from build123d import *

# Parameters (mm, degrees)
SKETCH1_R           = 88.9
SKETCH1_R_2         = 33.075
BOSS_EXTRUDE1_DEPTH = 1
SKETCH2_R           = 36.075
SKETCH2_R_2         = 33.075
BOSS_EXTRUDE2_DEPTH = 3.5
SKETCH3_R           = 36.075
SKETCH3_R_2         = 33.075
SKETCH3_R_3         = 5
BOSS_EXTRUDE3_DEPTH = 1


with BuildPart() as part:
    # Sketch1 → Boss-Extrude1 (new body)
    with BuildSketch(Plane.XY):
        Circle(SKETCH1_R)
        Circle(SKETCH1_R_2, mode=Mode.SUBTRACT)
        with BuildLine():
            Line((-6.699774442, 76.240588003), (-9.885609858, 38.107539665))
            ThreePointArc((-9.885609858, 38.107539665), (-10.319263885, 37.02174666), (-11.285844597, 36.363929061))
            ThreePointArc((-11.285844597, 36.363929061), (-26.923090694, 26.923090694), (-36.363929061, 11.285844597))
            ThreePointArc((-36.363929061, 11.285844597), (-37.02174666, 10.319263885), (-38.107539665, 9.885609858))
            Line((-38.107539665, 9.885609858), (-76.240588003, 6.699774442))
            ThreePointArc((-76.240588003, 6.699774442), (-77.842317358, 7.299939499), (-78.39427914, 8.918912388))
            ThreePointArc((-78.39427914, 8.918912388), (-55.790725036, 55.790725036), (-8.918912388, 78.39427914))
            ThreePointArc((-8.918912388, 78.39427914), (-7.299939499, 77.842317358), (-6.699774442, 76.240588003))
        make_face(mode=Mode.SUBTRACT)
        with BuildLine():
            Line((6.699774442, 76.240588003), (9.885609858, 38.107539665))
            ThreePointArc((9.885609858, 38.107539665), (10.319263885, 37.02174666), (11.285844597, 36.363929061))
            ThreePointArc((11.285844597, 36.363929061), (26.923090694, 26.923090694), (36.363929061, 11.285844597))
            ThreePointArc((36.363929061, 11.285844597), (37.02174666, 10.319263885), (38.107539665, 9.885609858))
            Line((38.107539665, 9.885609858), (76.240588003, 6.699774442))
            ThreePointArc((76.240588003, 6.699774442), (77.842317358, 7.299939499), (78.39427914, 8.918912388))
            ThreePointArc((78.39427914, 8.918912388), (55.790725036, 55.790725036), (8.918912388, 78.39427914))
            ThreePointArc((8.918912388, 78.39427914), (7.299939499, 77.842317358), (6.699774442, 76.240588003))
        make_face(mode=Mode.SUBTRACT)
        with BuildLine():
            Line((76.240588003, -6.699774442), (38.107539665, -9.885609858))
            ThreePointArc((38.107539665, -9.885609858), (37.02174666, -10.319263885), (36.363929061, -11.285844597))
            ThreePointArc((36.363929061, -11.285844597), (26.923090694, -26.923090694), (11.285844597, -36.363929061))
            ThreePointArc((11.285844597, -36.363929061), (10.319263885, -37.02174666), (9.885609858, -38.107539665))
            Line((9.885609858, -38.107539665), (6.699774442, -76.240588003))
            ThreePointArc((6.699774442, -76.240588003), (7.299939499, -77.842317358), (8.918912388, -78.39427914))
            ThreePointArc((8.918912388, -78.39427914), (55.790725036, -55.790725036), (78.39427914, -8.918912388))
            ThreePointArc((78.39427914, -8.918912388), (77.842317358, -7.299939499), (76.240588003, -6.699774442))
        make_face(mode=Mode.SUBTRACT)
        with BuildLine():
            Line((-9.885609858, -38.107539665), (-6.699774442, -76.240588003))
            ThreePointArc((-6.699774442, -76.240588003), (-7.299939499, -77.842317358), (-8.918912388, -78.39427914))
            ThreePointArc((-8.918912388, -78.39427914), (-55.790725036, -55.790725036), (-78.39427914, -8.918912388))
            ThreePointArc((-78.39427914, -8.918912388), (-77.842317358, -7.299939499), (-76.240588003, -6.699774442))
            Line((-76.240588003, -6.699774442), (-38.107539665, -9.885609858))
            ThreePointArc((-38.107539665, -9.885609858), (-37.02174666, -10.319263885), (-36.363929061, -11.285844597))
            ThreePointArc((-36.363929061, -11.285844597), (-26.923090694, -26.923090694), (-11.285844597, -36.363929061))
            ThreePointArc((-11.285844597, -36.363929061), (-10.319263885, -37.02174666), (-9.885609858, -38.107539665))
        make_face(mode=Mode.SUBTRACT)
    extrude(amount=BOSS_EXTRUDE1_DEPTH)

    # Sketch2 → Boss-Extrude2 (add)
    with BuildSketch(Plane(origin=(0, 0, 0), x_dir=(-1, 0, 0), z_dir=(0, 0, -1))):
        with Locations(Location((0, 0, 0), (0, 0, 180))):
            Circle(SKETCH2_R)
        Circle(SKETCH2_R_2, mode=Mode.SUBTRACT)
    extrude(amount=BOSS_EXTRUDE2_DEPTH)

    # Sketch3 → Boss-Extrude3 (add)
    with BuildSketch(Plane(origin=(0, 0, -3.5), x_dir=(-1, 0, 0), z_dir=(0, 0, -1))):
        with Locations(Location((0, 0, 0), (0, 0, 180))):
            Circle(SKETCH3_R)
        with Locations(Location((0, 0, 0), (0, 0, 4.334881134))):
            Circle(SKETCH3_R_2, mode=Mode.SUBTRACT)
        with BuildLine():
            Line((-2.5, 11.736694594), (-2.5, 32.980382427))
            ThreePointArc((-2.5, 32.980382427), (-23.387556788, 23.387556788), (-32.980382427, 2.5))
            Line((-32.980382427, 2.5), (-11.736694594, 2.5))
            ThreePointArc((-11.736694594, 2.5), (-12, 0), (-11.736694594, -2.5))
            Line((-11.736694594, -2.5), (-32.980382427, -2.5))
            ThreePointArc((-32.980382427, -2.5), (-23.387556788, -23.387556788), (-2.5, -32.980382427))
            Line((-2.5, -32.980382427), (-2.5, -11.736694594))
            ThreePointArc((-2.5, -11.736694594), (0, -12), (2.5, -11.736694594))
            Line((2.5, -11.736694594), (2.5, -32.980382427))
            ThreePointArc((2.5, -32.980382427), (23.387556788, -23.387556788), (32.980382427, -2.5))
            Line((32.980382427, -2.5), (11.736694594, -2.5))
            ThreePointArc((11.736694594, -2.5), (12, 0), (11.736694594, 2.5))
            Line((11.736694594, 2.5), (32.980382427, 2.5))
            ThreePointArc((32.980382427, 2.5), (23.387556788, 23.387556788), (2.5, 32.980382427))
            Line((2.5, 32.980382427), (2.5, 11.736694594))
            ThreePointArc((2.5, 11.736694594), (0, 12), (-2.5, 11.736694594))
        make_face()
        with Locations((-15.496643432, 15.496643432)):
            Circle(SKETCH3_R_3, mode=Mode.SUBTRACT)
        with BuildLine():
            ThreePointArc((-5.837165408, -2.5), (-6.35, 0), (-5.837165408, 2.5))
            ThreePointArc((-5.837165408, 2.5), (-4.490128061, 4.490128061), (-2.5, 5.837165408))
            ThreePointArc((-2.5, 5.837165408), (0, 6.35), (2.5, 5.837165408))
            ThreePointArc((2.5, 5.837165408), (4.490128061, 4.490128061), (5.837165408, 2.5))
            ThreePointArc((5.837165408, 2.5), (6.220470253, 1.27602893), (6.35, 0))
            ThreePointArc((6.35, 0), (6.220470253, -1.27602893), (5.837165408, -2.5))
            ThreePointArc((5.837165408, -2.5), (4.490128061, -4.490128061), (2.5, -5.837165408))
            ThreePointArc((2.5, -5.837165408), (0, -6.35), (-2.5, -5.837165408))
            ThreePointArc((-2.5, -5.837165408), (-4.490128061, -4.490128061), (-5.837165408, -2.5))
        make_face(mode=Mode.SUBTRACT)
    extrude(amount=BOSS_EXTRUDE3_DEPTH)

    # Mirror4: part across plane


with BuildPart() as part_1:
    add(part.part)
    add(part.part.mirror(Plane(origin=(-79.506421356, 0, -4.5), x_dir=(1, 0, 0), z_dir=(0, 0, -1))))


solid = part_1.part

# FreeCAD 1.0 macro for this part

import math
import FreeCAD as App
import Part
import Sketcher

doc = App.newDocument("Part")
body = doc.addObject("PartDesign::Body", "Body")

sketch1 = doc.addObject("Sketcher::SketchObject", "Sketch")
body.addObject(sketch1)
sketch1.AttachmentSupport = (doc.XY_Plane, [""])
sketch1.MapMode = "FlatFace"
sketch1.addGeometry([
    Part.Circle(App.Vector(0, 0, 0), App.Vector(0, 0, 1), 88.9),
    Part.ArcOfCircle(Part.Circle(App.Vector(-11.878666, -38.27405, 0), App.Vector(0, 0, 1), 2), math.radians(4.7757), math.radians(72.75784)),
    Part.LineSegment(App.Vector(-9.88561, -38.10754, 0), App.Vector(-6.699774, -76.240588, 0)),
    Part.ArcOfCircle(Part.Circle(App.Vector(-8.692831, -76.407098, 0), App.Vector(0, 0, 1), 2), math.radians(-96.490629), math.radians(4.7757)),
    Part.ArcOfCircle(Part.Circle(App.Vector(0, 0, 0), App.Vector(0, 0, 1), 78.9), math.radians(-173.509371), math.radians(-96.490629)),
    Part.ArcOfCircle(Part.Circle(App.Vector(-76.407098, -8.692831, 0), App.Vector(0, 0, 1), 2), math.radians(85.2243), math.radians(186.490629)),
    Part.LineSegment(App.Vector(-76.240588, -6.699774, 0), App.Vector(-38.10754, -9.88561, 0)),
    Part.ArcOfCircle(Part.Circle(App.Vector(-38.27405, -11.878666, 0), App.Vector(0, 0, 1), 2), math.radians(17.24216), math.radians(85.2243)),
    Part.ArcOfCircle(Part.Circle(App.Vector(0, 0, 0), App.Vector(0, 0, 1), 38.075), math.radians(-162.75784), math.radians(-107.24216)),
    Part.LineSegment(App.Vector(38.10754, -9.88561, 0), App.Vector(76.240588, -6.699774, 0)),
    Part.ArcOfCircle(Part.Circle(App.Vector(76.407098, -8.692831, 0), App.Vector(0, 0, 1), 2), math.radians(-6.490629), math.radians(94.7757)),
    Part.ArcOfCircle(Part.Circle(App.Vector(0, 0, 0), App.Vector(0, 0, 1), 78.9), math.radians(-83.509371), math.radians(-6.490629)),
    Part.ArcOfCircle(Part.Circle(App.Vector(8.692831, -76.407098, 0), App.Vector(0, 0, 1), 2), math.radians(175.2243), math.radians(276.490629)),
    Part.LineSegment(App.Vector(6.699774, -76.240588, 0), App.Vector(9.88561, -38.10754, 0)),
    Part.ArcOfCircle(Part.Circle(App.Vector(11.878666, -38.27405, 0), App.Vector(0, 0, 1), 2), math.radians(107.24216), math.radians(175.2243)),
    Part.ArcOfCircle(Part.Circle(App.Vector(0, 0, 0), App.Vector(0, 0, 1), 38.075), math.radians(-72.75784), math.radians(-17.24216)),
    Part.ArcOfCircle(Part.Circle(App.Vector(38.27405, -11.878666, 0), App.Vector(0, 0, 1), 2), math.radians(94.7757), math.radians(162.75784)),
    Part.Circle(App.Vector(0, 0, 0), App.Vector(0, 0, 1), 33.075),
    Part.ArcOfCircle(Part.Circle(App.Vector(-8.692831, 76.407098, 0), App.Vector(0, 0, 1), 2), math.radians(-4.7757), math.radians(96.490629)),
    Part.LineSegment(App.Vector(-6.699774, 76.240588, 0), App.Vector(-9.88561, 38.10754, 0)),
    Part.ArcOfCircle(Part.Circle(App.Vector(-11.878666, 38.27405, 0), App.Vector(0, 0, 1), 2), math.radians(-72.75784), math.radians(-4.7757)),
    Part.ArcOfCircle(Part.Circle(App.Vector(0, 0, 0), App.Vector(0, 0, 1), 38.075), math.radians(107.24216), math.radians(162.75784)),
    Part.ArcOfCircle(Part.Circle(App.Vector(-38.27405, 11.878666, 0), App.Vector(0, 0, 1), 2), math.radians(-85.2243), math.radians(-17.24216)),
    Part.LineSegment(App.Vector(-38.10754, 9.88561, 0), App.Vector(-76.240588, 6.699774, 0)),
    Part.ArcOfCircle(Part.Circle(App.Vector(-76.407098, 8.692831, 0), App.Vector(0, 0, 1), 2), math.radians(173.509371), math.radians(274.7757)),
    Part.ArcOfCircle(Part.Circle(App.Vector(0, 0, 0), App.Vector(0, 0, 1), 78.9), math.radians(96.490629), math.radians(173.509371)),
    Part.LineSegment(App.Vector(9.88561, 38.10754, 0), App.Vector(6.699774, 76.240588, 0)),
    Part.ArcOfCircle(Part.Circle(App.Vector(8.692831, 76.407098, 0), App.Vector(0, 0, 1), 2), math.radians(83.509371), math.radians(184.7757)),
    Part.ArcOfCircle(Part.Circle(App.Vector(0, 0, 0), App.Vector(0, 0, 1), 78.9), math.radians(6.490629), math.radians(83.509371)),
    Part.ArcOfCircle(Part.Circle(App.Vector(76.407098, 8.692831, 0), App.Vector(0, 0, 1), 2), math.radians(-94.7757), math.radians(6.490629)),
    Part.LineSegment(App.Vector(76.240588, 6.699774, 0), App.Vector(38.10754, 9.88561, 0)),
    Part.ArcOfCircle(Part.Circle(App.Vector(38.27405, 11.878666, 0), App.Vector(0, 0, 1), 2), math.radians(-162.75784), math.radians(-94.7757)),
    Part.ArcOfCircle(Part.Circle(App.Vector(0, 0, 0), App.Vector(0, 0, 1), 38.075), math.radians(17.24216), math.radians(72.75784)),
    Part.ArcOfCircle(Part.Circle(App.Vector(11.878666, 38.27405, 0), App.Vector(0, 0, 1), 2), math.radians(-175.2243), math.radians(-107.24216)),
], False)
sketch1.addConstraint([
    Sketcher.Constraint("Tangent", 1, 1, 2, 1),
    Sketcher.Constraint("Tangent", 2, 2, 3, 2),
    Sketcher.Constraint("Tangent", 3, 1, 4, 2),
    Sketcher.Constraint("Tangent", 4, 1, 5, 2),
    Sketcher.Constraint("Tangent", 5, 1, 6, 1),
    Sketcher.Constraint("Tangent", 6, 2, 7, 2),
    Sketcher.Constraint("Tangent", 7, 1, 8, 1),
    Sketcher.Constraint("Tangent", 8, 2, 1, 2),
    Sketcher.Constraint("Tangent", 9, 2, 10, 2),
    Sketcher.Constraint("Tangent", 10, 1, 11, 2),
    Sketcher.Constraint("Tangent", 11, 1, 12, 2),
    Sketcher.Constraint("Tangent", 12, 1, 13, 1),
    Sketcher.Constraint("Tangent", 13, 2, 14, 2),
    Sketcher.Constraint("Tangent", 14, 1, 15, 1),
    Sketcher.Constraint("Tangent", 15, 2, 16, 2),
    Sketcher.Constraint("Tangent", 16, 1, 9, 1),
    Sketcher.Constraint("Tangent", 18, 1, 19, 1),
    Sketcher.Constraint("Tangent", 19, 2, 20, 2),
    Sketcher.Constraint("Tangent", 20, 1, 21, 1),
    Sketcher.Constraint("Tangent", 21, 2, 22, 2),
    Sketcher.Constraint("Tangent", 22, 1, 23, 1),
    Sketcher.Constraint("Tangent", 23, 2, 24, 2),
    Sketcher.Constraint("Tangent", 24, 1, 25, 2),
    Sketcher.Constraint("Tangent", 25, 1, 18, 2),
    Sketcher.Constraint("Tangent", 26, 2, 27, 2),
    Sketcher.Constraint("Tangent", 27, 1, 28, 2),
    Sketcher.Constraint("Tangent", 28, 1, 29, 2),
    Sketcher.Constraint("Tangent", 29, 1, 30, 1),
    Sketcher.Constraint("Tangent", 30, 2, 31, 2),
    Sketcher.Constraint("Tangent", 31, 1, 32, 1),
    Sketcher.Constraint("Tangent", 32, 2, 33, 2),
    Sketcher.Constraint("Tangent", 33, 1, 26, 1),
    Sketcher.Constraint("Coincident", 0, 3, -1, 1),
    Sketcher.Constraint("Coincident", 4, 3, -1, 1),
    Sketcher.Constraint("Coincident", 8, 3, -1, 1),
    Sketcher.Constraint("Coincident", 11, 3, -1, 1),
    Sketcher.Constraint("Coincident", 15, 3, -1, 1),
    Sketcher.Constraint("Coincident", 17, 3, -1, 1),
    Sketcher.Constraint("Coincident", 21, 3, -1, 1),
    Sketcher.Constraint("Coincident", 25, 3, -1, 1),
    Sketcher.Constraint("Coincident", 28, 3, -1, 1),
    Sketcher.Constraint("Coincident", 32, 3, -1, 1),
    Sketcher.Constraint("Equal", 1, 3),
    Sketcher.Constraint("Equal", 3, 5),
    Sketcher.Constraint("Equal", 5, 7),
    Sketcher.Constraint("Equal", 7, 10),
    Sketcher.Constraint("Equal", 4, 11),
    Sketcher.Constraint("Equal", 10, 12),
    Sketcher.Constraint("Equal", 12, 14),
    Sketcher.Constraint("Equal", 8, 15),
    Sketcher.Constraint("Equal", 14, 16),
    Sketcher.Constraint("Equal", 16, 18),
    Sketcher.Constraint("Equal", 18, 20),
    Sketcher.Constraint("Equal", 15, 21),
    Sketcher.Constraint("Equal", 20, 22),
    Sketcher.Constraint("Equal", 22, 24),
    Sketcher.Constraint("Equal", 11, 25),
    Sketcher.Constraint("Equal", 24, 27),
    Sketcher.Constraint("Equal", 25, 28),
    Sketcher.Constraint("Equal", 27, 29),
    Sketcher.Constraint("Equal", 29, 31),
    Sketcher.Constraint("Equal", 21, 32),
    Sketcher.Constraint("Equal", 31, 33),
    Sketcher.Constraint("Symmetric", 12, 1, 18, 1, -1, 1),
    Sketcher.Constraint("Symmetric", 16, 1, 22, 1, -1, 1),
    Sketcher.Constraint("Symmetric", 2, 2, 26, 2, -1, 1),
    Sketcher.Constraint("Symmetric", 5, 1, 29, 1, -1, 1),
    Sketcher.Constraint("Symmetric", 5, 1, 9, 2, -2),
    Sketcher.Constraint("Symmetric", 2, 2, 12, 1, -2),
    Sketcher.Constraint("Perpendicular", 2, 9),
    Sketcher.Constraint("Equal", 2, 6),
    Sketcher.Constraint("Radius", 1, 2.0),
    Sketcher.Constraint("Diameter", 0, 177.8),
    Sketcher.Constraint("Radius", 4, 78.9),
    Sketcher.Constraint("Diameter", 17, 66.15),
    Sketcher.Constraint("Radius", 8, 38.075),
    Sketcher.Constraint("DistanceY", 3, 3, -1, 1, 76.407098),
    Sketcher.Constraint("DistanceY", 1, 3, -1, 1, 38.27405),
])
pad1 = doc.addObject("PartDesign::Pad", "Pad")
body.addObject(pad1)
pad1.Profile = sketch1
pad1.Length = 1

sketch2 = doc.addObject("Sketcher::SketchObject", "Sketch001")
body.addObject(sketch2)
sketch2.AttachmentSupport = (doc.XY_Plane, [""])
sketch2.MapMode = "FlatFace"
sketch2.addGeometry([
    Part.Circle(App.Vector(0, 0, 0), App.Vector(0, 0, 1), 36.075),
    Part.Circle(App.Vector(0, 0, 0), App.Vector(0, 0, 1), 33.075),
], False)
sketch2.addConstraint([
    Sketcher.Constraint("Coincident", 0, 3, -1, 1),
    Sketcher.Constraint("Coincident", 1, 3, -1, 1),
    Sketcher.Constraint("Diameter", 0, 72.15),
    Sketcher.Constraint("Diameter", 1, 66.15),
])
pad2 = doc.addObject("PartDesign::Pad", "Pad001")
body.addObject(pad2)
pad2.Profile = sketch2
pad2.Length = 3.5
pad2.Reversed = True

sketch3 = doc.addObject("Sketcher::SketchObject", "Sketch002")
body.addObject(sketch3)
sketch3.AttachmentSupport = (doc.XY_Plane, [""])
sketch3.MapMode = "FlatFace"
sketch3.AttachmentOffset = App.Placement(App.Vector(0, 0, -3.5), App.Rotation())
sketch3.addGeometry([
    Part.Circle(App.Vector(0, 0, 0), App.Vector(0, 0, 1), 36.075),
    Part.ArcOfCircle(Part.Circle(App.Vector(0, 0, 0), App.Vector(0, 0, 1), 33.075), math.radians(175.665119), math.radians(184.334881)),
    Part.LineSegment(App.Vector(-32.980382, -2.5, 0), App.Vector(-11.736695, -2.5, 0)),
    Part.ArcOfCircle(Part.Circle(App.Vector(0, 0, 0), App.Vector(0, 0, 1), 12), math.radians(167.975301), math.radians(192.024699)),
    Part.LineSegment(App.Vector(-11.736695, 2.5, 0), App.Vector(-32.980382, 2.5, 0)),
    Part.ArcOfCircle(Part.Circle(App.Vector(0, 0, 0), App.Vector(0, 0, 1), 33.075), math.radians(85.665119), math.radians(94.334881)),
    Part.LineSegment(App.Vector(-2.5, 32.980382, 0), App.Vector(-2.5, 11.736695, 0)),
    Part.ArcOfCircle(Part.Circle(App.Vector(0, 0, 0), App.Vector(0, 0, 1), 12), math.radians(77.975301), math.radians(102.024699)),
    Part.LineSegment(App.Vector(2.5, 11.736695, 0), App.Vector(2.5, 32.980382, 0)),
    Part.Circle(App.Vector(15.496643, 15.496643, 0), App.Vector(0, 0, 1), 5),
    Part.ArcOfCircle(Part.Circle(App.Vector(0, 0, 0), App.Vector(0, 0, 1), 6.35), math.radians(-66.81503), math.radians(-23.18497)),
    Part.ArcOfCircle(Part.Circle(App.Vector(0, 0, 0), App.Vector(0, 0, 1), 6.35), math.radians(-23.18497), math.radians(23.18497)),
    Part.ArcOfCircle(Part.Circle(App.Vector(0, 0, 0), App.Vector(0, 0, 1), 6.35), math.radians(23.18497), math.radians(66.81503)),
    Part.ArcOfCircle(Part.Circle(App.Vector(0, 0, 0), App.Vector(0, 0, 1), 6.35), math.radians(66.81503), math.radians(113.18497)),
    Part.ArcOfCircle(Part.Circle(App.Vector(0, 0, 0), App.Vector(0, 0, 1), 6.35), math.radians(113.18497), math.radians(156.81503)),
    Part.ArcOfCircle(Part.Circle(App.Vector(0, 0, 0), App.Vector(0, 0, 1), 6.35), math.radians(156.81503), math.radians(180)),
    Part.ArcOfCircle(Part.Circle(App.Vector(0, 0, 0), App.Vector(0, 0, 1), 6.35), math.radians(-180), math.radians(-156.81503)),
    Part.ArcOfCircle(Part.Circle(App.Vector(0, 0, 0), App.Vector(0, 0, 1), 6.35), math.radians(-156.81503), math.radians(-113.18497)),
    Part.ArcOfCircle(Part.Circle(App.Vector(0, 0, 0), App.Vector(0, 0, 1), 6.35), math.radians(-113.18497), math.radians(-66.81503)),
    Part.ArcOfCircle(Part.Circle(App.Vector(0, 0, 0), App.Vector(0, 0, 1), 33.075), math.radians(-94.334881), math.radians(-85.665119)),
    Part.LineSegment(App.Vector(2.5, -32.980382, 0), App.Vector(2.5, -11.736695, 0)),
    Part.ArcOfCircle(Part.Circle(App.Vector(0, 0, 0), App.Vector(0, 0, 1), 12), math.radians(-102.024699), math.radians(-77.975301)),
    Part.LineSegment(App.Vector(-2.5, -11.736695, 0), App.Vector(-2.5, -32.980382, 0)),
    Part.ArcOfCircle(Part.Circle(App.Vector(0, 0, 0), App.Vector(0, 0, 1), 33.075), math.radians(-4.334881), math.radians(4.334881)),
    Part.LineSegment(App.Vector(32.980382, 2.5, 0), App.Vector(11.736695, 2.5, 0)),
    Part.ArcOfCircle(Part.Circle(App.Vector(0, 0, 0), App.Vector(0, 0, 1), 12), math.radians(-12.024699), math.radians(12.024699)),
    Part.LineSegment(App.Vector(11.736695, -2.5, 0), App.Vector(32.980382, -2.5, 0)),
], False)
sketch3.addConstraint([
    Sketcher.Constraint("Coincident", 1, 2, 2, 1),
    Sketcher.Constraint("Coincident", 2, 2, 3, 2),
    Sketcher.Constraint("Coincident", 3, 1, 4, 1),
    Sketcher.Constraint("Coincident", 4, 2, 1, 1),
    Sketcher.Constraint("Coincident", 5, 2, 6, 1),
    Sketcher.Constraint("Coincident", 6, 2, 7, 2),
    Sketcher.Constraint("Coincident", 7, 1, 8, 1),
    Sketcher.Constraint("Coincident", 8, 2, 5, 1),
    Sketcher.Constraint("Tangent", 10, 2, 11, 1),
    Sketcher.Constraint("Tangent", 11, 2, 12, 1),
    Sketcher.Constraint("Tangent", 12, 2, 13, 1),
    Sketcher.Constraint("Tangent", 13, 2, 14, 1),
    Sketcher.Constraint("Tangent", 14, 2, 15, 1),
    Sketcher.Constraint("Tangent", 15, 2, 16, 1),
    Sketcher.Constraint("Tangent", 16, 2, 17, 1),
    Sketcher.Constraint("Tangent", 17, 2, 18, 1),
    Sketcher.Constraint("Tangent", 18, 2, 10, 1),
    Sketcher.Constraint("Coincident", 19, 2, 20, 1),
    Sketcher.Constraint("Coincident", 20, 2, 21, 2),
    Sketcher.Constraint("Coincident", 21, 1, 22, 1),
    Sketcher.Constraint("Coincident", 22, 2, 19, 1),
    Sketcher.Constraint("Coincident", 23, 2, 24, 1),
    Sketcher.Constraint("Coincident", 24, 2, 25, 2),
    Sketcher.Constraint("Coincident", 25, 1, 26, 1),
    Sketcher.Constraint("Coincident", 26, 2, 23, 1),
    Sketcher.Constraint("Horizontal", 2),
    Sketcher.Constraint("Horizontal", 4),
    Sketcher.Constraint("Vertical", 6),
    Sketcher.Constraint("Vertical", 8),
    Sketcher.Constraint("Vertical", 20),
    Sketcher.Constraint("Vertical", 22),
    Sketcher.Constraint("Horizontal", 24),
    Sketcher.Constraint("Horizontal", 26),
    Sketcher.Constraint("Coincident", 0, 3, -1, 1),
    Sketcher.Constraint("Coincident", 1, 3, -1, 1),
    Sketcher.Constraint("Coincident", 3, 3, -1, 1),
    Sketcher.Constraint("Coincident", 5, 3, -1, 1),
    Sketcher.Constraint("Coincident", 7, 3, -1, 1),
    Sketcher.Constraint("Coincident", 10, 3, -1, 1),
    Sketcher.Constraint("Coincident", 12, 3, -1, 1),
    Sketcher.Constraint("Coincident", 14, 3, -1, 1),
    Sketcher.Constraint("Coincident", 16, 3, -1, 1),
    Sketcher.Constraint("Coincident", 19, 3, -1, 1),
    Sketcher.Constraint("Coincident", 21, 3, -1, 1),
    Sketcher.Constraint("Coincident", 23, 3, -1, 1),
    Sketcher.Constraint("Coincident", 25, 3, -1, 1),
    Sketcher.Constraint("Equal", 1, 5),
    Sketcher.Constraint("Equal", 3, 7),
    Sketcher.Constraint("Equal", 5, 19),
    Sketcher.Constraint("Equal", 7, 21),
    Sketcher.Constraint("Equal", 19, 23),
    Sketcher.Constraint("Equal", 21, 25),
    Sketcher.Constraint("PointOnObject", 15, 2, -1),
    Sketcher.Constraint("Horizontal", 6, 2, 7, 1),
    Sketcher.Constraint("Horizontal", 2, 2, 10, 2),
    Sketcher.Constraint("Horizontal", 4, 2, 11, 2),
    Sketcher.Constraint("Horizontal", 12, 2, 13, 2),
    Sketcher.Constraint("Horizontal", 11, 2, 14, 2),
    Sketcher.Constraint("Horizontal", 10, 2, 16, 2),
    Sketcher.Constraint("Horizontal", 17, 2, 18, 2),
    Sketcher.Constraint("Horizontal", 20, 2, 21, 1),
    Sketcher.Constraint("Horizontal", 14, 2, 23, 2),
    Sketcher.Constraint("Horizontal", 16, 2, 25, 1),
    Sketcher.Constraint("Vertical", 2, 2, 3, 1),
    Sketcher.Constraint("Vertical", 8, 2, 12, 2),
    Sketcher.Constraint("Vertical", 13, 2, 17, 2),
    Sketcher.Constraint("Vertical", 18, 2, 19, 2),
    Sketcher.Constraint("Equal", 26, 6),
    Sketcher.Constraint("Diameter", 9, 10.0),
    Sketcher.Constraint("Radius", 3, 12.0),
    Sketcher.Constraint("Diameter", 0, 72.15),
    Sketcher.Constraint("Radius", 10, 6.35),
    Sketcher.Constraint("Radius", 1, 33.075),
    Sketcher.Constraint("DistanceY", 2, 2, 3, 1, 5.0),
    Sketcher.Constraint("DistanceY", 9, 3, 5, 2, 17.483739),
    Sketcher.Constraint("DistanceX", 9, 3, 23, 2, 17.483739),
])
pad3 = doc.addObject("PartDesign::Pad", "Pad002")
body.addObject(pad3)
pad3.Profile = sketch3
pad3.Length = 1
pad3.Reversed = True
body2 = doc.addObject("PartDesign::Body", "Body001")
doc.recompute()

body2.BaseFeature = body
doc.recompute()

mirroring = doc.addObject("Part::Mirroring", "Mirroring")
mirroring.Source = body
mirroring.Base = App.Vector(-79.506421, 0, -4.5)
mirroring.Normal = App.Vector(0, 0, -1)
body3 = doc.addObject("PartDesign::Body", "Body002")
body3.BaseFeature = mirroring
boolean = doc.addObject("PartDesign::Boolean", "Boolean")
body2.addObject(boolean)
boolean.Type = "Fuse"
boolean.addObjects([body3])
doc.recompute()
mirroring.Visibility = False

doc.recompute()
